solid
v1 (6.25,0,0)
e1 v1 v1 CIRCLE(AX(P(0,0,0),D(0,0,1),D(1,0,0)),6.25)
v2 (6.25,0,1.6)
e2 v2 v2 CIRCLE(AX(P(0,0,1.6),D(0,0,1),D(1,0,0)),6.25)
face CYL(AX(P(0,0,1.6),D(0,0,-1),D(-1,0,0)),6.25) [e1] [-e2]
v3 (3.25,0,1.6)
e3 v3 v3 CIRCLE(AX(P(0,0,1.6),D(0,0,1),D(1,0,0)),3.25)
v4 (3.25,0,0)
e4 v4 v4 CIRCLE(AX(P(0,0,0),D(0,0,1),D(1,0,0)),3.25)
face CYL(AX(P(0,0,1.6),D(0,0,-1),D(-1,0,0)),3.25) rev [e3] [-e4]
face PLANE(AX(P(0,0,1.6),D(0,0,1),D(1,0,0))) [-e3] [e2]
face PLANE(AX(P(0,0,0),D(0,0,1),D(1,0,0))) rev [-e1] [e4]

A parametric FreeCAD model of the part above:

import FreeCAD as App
import Part
import Sketcher

doc = App.newDocument("Part")
body = doc.addObject("PartDesign::Body", "Body")

sketch1 = body.newObject("Sketcher::SketchObject", "Sketch")
sketch1.AttachmentSupport = (doc.getObject("XY_Plane"), [""])
sketch1.MapMode = "FlatFace"
sketch1.addGeometry([
    Part.Circle(App.Vector(0, 0, 0), App.Vector(0, 0, 1), 6.2),
    Part.Circle(App.Vector(0, 0, 0), App.Vector(0, 0, 1), 3.2),
], False)
sketch1.addConstraint([
    Sketcher.Constraint("Coincident", 0, 3, -1, 1),
    Sketcher.Constraint("Coincident", 1, 3, -1, 1),
    Sketcher.Constraint("Diameter", 0, 12.5),
    Sketcher.Constraint("Diameter", 1, 6.5),
])
pad1 = body.newObject("PartDesign::Pad", "Pad")
pad1.Profile = sketch1
pad1.Length = 1.6

doc.recompute()
